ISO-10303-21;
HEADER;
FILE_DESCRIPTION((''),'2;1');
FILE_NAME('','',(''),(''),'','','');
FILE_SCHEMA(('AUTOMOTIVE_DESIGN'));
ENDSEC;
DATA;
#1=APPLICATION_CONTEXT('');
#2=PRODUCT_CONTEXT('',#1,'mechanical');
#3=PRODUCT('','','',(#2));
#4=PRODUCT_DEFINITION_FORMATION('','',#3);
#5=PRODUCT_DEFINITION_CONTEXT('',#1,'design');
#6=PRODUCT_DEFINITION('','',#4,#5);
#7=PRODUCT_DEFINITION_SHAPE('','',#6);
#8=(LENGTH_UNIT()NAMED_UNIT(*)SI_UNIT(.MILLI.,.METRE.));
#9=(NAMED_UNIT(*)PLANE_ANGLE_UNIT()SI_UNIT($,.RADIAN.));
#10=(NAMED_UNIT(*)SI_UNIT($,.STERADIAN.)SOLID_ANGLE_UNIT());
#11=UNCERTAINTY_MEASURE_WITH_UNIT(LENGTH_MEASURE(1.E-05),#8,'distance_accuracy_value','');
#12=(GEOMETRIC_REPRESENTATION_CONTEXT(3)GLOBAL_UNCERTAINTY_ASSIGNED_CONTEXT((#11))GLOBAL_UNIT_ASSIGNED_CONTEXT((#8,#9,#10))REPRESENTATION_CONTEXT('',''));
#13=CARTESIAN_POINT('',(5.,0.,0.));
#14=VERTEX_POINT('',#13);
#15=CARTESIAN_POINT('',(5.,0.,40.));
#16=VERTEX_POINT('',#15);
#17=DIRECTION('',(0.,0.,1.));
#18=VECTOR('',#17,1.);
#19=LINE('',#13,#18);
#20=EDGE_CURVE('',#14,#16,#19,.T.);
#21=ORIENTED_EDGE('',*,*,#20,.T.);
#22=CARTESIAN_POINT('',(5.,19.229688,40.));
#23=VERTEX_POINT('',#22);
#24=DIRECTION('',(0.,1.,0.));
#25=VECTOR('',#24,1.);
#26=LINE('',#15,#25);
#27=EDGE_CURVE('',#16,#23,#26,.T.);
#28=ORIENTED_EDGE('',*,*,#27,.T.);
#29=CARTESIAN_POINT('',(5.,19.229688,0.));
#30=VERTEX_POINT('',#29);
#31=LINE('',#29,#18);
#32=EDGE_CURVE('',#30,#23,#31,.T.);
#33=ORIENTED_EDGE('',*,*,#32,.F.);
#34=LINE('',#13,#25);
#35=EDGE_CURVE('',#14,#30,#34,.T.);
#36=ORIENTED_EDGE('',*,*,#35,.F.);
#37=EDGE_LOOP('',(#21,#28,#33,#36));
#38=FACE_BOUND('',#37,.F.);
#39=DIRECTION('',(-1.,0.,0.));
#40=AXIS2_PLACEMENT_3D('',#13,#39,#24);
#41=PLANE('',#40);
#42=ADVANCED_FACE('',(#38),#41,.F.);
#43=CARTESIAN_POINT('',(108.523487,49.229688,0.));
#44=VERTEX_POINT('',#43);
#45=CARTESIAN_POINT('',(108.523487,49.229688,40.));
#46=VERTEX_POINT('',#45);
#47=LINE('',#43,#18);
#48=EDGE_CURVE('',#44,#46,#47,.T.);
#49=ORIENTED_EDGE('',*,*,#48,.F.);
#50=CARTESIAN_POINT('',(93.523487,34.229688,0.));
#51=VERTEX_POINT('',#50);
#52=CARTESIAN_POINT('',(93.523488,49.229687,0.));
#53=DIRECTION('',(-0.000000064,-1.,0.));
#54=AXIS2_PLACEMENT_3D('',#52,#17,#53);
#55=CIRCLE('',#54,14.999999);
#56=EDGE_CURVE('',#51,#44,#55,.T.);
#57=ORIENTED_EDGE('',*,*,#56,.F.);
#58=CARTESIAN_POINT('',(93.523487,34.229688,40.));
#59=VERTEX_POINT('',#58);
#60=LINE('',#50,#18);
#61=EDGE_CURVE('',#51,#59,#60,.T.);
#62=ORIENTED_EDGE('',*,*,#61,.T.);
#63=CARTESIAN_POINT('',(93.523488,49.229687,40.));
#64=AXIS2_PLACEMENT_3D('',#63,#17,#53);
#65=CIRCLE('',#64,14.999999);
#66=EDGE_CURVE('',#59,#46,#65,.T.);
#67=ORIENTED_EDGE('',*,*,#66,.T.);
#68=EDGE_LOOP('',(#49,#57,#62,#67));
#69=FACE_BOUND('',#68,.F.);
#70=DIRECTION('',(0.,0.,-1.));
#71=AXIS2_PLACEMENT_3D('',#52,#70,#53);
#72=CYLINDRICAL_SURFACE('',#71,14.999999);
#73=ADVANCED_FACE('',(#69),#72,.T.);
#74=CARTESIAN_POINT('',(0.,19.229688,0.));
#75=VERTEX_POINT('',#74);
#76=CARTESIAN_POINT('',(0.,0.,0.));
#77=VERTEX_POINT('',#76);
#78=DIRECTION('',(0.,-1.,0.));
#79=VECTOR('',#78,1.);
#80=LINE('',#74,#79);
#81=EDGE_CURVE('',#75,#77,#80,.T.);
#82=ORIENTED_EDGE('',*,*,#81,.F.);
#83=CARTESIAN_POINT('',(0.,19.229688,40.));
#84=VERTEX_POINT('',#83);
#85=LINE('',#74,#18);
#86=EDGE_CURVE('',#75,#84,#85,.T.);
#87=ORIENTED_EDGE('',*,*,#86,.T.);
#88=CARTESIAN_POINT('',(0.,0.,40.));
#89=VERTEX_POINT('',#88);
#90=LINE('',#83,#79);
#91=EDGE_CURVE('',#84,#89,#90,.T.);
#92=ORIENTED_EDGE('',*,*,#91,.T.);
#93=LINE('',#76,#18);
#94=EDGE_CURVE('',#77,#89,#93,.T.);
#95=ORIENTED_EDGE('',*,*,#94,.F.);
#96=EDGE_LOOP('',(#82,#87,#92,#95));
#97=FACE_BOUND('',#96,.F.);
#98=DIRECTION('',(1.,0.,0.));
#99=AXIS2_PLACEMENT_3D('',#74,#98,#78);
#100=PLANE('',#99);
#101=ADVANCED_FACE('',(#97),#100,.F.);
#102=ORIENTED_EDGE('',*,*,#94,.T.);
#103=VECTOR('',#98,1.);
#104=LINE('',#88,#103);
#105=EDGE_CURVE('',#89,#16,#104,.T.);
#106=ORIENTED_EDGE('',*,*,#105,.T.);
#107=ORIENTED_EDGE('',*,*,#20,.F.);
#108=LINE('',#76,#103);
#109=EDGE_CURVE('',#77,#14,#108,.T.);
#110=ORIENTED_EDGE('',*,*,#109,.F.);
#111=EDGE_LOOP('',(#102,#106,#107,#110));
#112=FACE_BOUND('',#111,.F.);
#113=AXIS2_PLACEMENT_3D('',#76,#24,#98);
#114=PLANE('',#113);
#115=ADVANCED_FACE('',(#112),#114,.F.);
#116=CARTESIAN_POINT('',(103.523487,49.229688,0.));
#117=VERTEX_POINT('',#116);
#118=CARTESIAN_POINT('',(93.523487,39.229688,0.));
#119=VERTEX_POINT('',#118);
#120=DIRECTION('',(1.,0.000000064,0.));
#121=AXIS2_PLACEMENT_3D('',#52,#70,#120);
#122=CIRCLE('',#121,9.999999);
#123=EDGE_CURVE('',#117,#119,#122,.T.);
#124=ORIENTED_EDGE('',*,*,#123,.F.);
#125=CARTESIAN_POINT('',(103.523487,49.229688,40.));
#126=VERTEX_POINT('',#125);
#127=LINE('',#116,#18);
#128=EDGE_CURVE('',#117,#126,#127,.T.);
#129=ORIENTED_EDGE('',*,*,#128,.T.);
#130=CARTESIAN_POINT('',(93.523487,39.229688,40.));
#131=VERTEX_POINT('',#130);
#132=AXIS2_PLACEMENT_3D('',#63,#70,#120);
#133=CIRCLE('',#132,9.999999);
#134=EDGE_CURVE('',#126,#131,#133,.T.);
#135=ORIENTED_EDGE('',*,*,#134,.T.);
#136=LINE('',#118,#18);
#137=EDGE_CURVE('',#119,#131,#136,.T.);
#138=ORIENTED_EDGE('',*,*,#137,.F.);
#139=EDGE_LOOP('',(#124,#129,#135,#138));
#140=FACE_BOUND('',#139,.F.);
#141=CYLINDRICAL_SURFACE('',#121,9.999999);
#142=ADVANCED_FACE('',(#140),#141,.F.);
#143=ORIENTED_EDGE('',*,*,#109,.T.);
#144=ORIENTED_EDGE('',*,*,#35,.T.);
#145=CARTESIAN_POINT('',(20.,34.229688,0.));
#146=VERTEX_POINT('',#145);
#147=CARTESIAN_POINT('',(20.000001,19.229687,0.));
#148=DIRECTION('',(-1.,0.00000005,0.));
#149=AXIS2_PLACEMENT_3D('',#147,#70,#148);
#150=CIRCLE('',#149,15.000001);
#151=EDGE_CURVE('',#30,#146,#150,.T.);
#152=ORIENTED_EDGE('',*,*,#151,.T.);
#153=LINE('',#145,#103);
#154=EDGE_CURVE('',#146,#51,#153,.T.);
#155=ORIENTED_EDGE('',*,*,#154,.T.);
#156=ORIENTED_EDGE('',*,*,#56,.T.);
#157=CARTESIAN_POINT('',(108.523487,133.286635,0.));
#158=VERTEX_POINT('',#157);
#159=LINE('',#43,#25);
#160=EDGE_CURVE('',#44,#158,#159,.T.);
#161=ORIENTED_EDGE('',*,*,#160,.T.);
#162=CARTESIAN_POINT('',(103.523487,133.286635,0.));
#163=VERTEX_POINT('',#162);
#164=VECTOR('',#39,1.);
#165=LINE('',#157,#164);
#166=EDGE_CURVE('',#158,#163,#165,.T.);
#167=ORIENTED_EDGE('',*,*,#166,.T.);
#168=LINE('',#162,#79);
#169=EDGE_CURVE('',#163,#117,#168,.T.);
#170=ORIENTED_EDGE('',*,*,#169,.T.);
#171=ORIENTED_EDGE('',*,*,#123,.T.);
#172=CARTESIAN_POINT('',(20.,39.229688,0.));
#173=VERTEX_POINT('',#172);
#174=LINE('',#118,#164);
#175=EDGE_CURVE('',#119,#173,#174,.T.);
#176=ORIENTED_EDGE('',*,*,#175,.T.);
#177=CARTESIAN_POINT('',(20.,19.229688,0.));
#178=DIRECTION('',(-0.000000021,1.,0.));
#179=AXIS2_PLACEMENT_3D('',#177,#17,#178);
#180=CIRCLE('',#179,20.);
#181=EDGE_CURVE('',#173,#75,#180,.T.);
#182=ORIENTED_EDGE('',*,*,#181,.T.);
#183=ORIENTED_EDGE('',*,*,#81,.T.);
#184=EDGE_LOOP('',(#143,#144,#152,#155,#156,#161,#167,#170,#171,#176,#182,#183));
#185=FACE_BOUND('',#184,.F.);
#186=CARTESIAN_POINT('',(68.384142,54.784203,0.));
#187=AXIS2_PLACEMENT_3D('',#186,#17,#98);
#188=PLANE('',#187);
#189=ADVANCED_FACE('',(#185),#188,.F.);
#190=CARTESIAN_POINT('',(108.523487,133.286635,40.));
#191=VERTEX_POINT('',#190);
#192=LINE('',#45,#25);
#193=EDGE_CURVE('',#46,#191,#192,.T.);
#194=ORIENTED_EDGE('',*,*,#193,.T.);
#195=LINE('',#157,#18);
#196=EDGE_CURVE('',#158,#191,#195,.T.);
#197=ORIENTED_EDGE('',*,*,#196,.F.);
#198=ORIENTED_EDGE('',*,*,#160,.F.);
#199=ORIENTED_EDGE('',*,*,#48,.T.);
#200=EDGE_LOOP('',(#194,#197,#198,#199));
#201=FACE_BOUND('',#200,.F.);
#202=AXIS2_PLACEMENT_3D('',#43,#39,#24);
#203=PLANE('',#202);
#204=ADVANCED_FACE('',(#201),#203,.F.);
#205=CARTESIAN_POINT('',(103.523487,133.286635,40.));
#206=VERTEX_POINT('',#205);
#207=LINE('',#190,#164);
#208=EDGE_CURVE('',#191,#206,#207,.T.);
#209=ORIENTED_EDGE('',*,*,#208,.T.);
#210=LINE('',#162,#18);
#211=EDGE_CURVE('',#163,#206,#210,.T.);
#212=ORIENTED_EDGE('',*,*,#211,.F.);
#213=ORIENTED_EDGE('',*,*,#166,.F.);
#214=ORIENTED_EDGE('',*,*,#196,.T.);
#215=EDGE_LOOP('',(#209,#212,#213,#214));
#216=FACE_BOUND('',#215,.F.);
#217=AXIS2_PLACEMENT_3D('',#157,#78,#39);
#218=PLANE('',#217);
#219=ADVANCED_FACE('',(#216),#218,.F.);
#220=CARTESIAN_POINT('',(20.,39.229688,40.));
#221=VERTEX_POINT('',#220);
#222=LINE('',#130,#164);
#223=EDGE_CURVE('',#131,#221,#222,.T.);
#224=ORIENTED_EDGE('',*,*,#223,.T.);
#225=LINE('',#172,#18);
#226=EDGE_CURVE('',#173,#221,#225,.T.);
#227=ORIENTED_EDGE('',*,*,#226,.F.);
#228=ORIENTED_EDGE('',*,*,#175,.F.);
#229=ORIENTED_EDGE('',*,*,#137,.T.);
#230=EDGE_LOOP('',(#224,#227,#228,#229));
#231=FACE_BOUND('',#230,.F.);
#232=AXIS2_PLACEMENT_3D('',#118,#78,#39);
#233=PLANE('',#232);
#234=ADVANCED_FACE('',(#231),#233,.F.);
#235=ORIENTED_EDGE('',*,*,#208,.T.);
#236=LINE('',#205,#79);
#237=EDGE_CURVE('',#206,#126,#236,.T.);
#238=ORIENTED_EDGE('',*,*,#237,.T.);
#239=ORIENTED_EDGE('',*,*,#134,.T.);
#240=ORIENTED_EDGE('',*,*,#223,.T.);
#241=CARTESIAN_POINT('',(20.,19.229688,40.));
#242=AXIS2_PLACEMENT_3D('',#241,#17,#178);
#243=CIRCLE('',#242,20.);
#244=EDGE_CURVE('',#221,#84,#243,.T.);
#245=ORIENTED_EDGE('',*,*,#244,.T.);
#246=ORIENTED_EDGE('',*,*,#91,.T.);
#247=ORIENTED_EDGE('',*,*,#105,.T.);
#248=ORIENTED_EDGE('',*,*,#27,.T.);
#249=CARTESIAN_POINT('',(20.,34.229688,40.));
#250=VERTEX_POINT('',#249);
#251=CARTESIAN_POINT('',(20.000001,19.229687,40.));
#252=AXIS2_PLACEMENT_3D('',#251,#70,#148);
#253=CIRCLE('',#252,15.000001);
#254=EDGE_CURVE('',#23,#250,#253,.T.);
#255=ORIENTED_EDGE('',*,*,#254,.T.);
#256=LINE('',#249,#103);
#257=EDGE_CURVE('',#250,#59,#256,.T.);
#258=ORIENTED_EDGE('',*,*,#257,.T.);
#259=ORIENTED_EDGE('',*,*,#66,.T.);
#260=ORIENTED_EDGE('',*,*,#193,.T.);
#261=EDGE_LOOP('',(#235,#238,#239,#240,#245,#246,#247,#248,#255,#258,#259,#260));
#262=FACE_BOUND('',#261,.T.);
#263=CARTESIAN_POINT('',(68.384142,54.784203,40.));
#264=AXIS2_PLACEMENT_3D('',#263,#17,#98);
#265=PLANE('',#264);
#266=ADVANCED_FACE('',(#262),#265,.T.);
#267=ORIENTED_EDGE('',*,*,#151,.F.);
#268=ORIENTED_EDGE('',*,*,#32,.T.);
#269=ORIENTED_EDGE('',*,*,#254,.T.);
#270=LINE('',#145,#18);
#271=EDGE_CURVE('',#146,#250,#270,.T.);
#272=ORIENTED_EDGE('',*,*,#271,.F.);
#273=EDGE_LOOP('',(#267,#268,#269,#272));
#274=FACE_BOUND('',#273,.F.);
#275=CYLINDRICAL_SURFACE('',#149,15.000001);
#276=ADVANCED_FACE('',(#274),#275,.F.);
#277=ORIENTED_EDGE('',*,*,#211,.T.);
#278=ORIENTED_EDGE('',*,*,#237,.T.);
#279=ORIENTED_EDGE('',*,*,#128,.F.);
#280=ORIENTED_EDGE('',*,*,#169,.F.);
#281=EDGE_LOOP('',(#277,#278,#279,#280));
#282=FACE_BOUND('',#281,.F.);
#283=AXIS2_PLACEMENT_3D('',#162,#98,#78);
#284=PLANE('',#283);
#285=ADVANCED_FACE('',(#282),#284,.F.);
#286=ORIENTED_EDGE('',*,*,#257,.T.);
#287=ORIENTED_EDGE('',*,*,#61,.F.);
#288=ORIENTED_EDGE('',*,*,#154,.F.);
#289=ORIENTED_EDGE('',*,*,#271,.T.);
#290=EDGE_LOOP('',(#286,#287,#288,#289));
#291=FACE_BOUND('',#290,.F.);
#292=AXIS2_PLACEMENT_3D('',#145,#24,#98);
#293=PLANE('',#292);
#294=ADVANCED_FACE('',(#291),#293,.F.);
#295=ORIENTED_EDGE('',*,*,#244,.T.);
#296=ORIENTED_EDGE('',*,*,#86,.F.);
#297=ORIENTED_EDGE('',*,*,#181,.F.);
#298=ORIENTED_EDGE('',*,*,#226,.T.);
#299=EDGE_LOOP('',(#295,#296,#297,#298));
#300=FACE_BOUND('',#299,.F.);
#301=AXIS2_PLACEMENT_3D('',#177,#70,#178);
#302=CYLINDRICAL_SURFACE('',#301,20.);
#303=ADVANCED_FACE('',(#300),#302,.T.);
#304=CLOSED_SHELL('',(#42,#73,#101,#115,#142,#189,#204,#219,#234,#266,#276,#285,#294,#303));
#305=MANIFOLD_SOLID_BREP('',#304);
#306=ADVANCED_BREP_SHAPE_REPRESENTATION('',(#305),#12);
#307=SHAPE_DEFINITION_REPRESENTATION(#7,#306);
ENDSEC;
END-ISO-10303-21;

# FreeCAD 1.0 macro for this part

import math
import FreeCAD as App
import Part
import Sketcher
Q = App.Units.Quantity

doc = App.newDocument("Part")
params = doc.addObject("Spreadsheet::Sheet", "Params")
for row, (alias, value) in enumerate([
    ("sketch1_radius", "15.000001 mm"),
    ("sketch1_radius2", "9.999999 mm"),
    ("pad1_length", "40 mm"),
], start=1):
    params.set(f"A{row}", alias)
    params.set(f"B{row}", "=" + value)
    params.setAlias(f"B{row}", alias)

body = doc.addObject("PartDesign::Body", "Body")

# Sketch on XY plane
sketch1 = body.newObject("Sketcher::SketchObject", "Sketch")
sketch1.AttachmentSupport = (doc.getObject("XY_Plane"), [""])
sketch1.MapMode = "FlatFace"
sketch1.addGeometry([
    Part.LineSegment(App.Vector(0, 19, 0), App.Vector(0, 0, 0)),  # 0
    Part.LineSegment(App.Vector(0, 0, 0), App.Vector(5, 0, 0)),  # 1
    Part.LineSegment(App.Vector(5, 0, 0), App.Vector(5, 19, 0)),  # 2
    Part.ArcOfCircle(Part.Circle(App.Vector(20, 19, 0), App.Vector(0, 0, 1), 15), math.radians(90), math.radians(180)),  # 3
    Part.LineSegment(App.Vector(20, 34, 0), App.Vector(94, 34, 0)),  # 4
    Part.ArcOfCircle(Part.Circle(App.Vector(94, 49, 0), App.Vector(0, 0, 1), 15), math.radians(-90), math.radians(0)),  # 5
    Part.LineSegment(App.Vector(109, 49, 0), App.Vector(109, 133, 0)),  # 6
    Part.LineSegment(App.Vector(109, 133, 0), App.Vector(104, 133, 0)),  # 7
    Part.LineSegment(App.Vector(104, 133, 0), App.Vector(104, 49, 0)),  # 8
    Part.ArcOfCircle(Part.Circle(App.Vector(94, 49, 0), App.Vector(0, 0, 1), 10), math.radians(-90), math.radians(0)),  # 9
    Part.LineSegment(App.Vector(94, 39, 0), App.Vector(20, 39, 0)),  # 10
    Part.ArcOfCircle(Part.Circle(App.Vector(20, 19, 0), App.Vector(0, 0, 1), 20), math.radians(90), math.radians(180)),  # 11
], False)
sketch1.addConstraint([
    Sketcher.Constraint("Coincident", 0, 2, 1, 1),
    Sketcher.Constraint("Coincident", 1, 2, 2, 1),
    Sketcher.Constraint("Tangent", 2, 2, 3, 2),
    Sketcher.Constraint("Tangent", 3, 1, 4, 1),
    Sketcher.Constraint("Tangent", 4, 2, 5, 1),
    Sketcher.Constraint("Tangent", 5, 2, 6, 1),
    Sketcher.Constraint("Coincident", 6, 2, 7, 1),
    Sketcher.Constraint("Coincident", 7, 2, 8, 1),
    Sketcher.Constraint("Tangent", 8, 2, 9, 2),
    Sketcher.Constraint("Tangent", 9, 1, 10, 1),
    Sketcher.Constraint("Tangent", 10, 2, 11, 1),
    Sketcher.Constraint("Tangent", 11, 2, 0, 1),
    Sketcher.Constraint("Vertical", 0),
    Sketcher.Constraint("Horizontal", 1),
    Sketcher.Constraint("Vertical", 2),
    Sketcher.Constraint("Horizontal", 4),
    Sketcher.Constraint("Vertical", 6),
    Sketcher.Constraint("Horizontal", 7),
    Sketcher.Constraint("Vertical", 8),
    Sketcher.Constraint("Horizontal", 10),
    Sketcher.Constraint("Coincident", 0, 2, -1, 1),
    Sketcher.Constraint("Coincident", 9, 3, 5, 3),
    Sketcher.Constraint("Coincident", 11, 3, 3, 3),
    Sketcher.Constraint("Equal", 3, 5),
    Sketcher.Constraint("Radius", 3, Q("15.000001 mm")),
    Sketcher.Constraint("Radius", 9, Q("9.999999 mm")),
    Sketcher.Constraint("DistanceX", 4, 1, 4, 2, Q("73.523487 mm")),
    Sketcher.Constraint("DistanceY", 0, 2, 0, 1, Q("19.229688 mm")),
    Sketcher.Constraint("DistanceY", 6, 1, 6, 2, Q("84.056947 mm")),
])
sketch1.setExpression("Constraints[24]", "Params.sketch1_radius")
sketch1.setExpression("Constraints[25]", "Params.sketch1_radius2")
pad1 = body.newObject("PartDesign::Pad", "Pad")
pad1.Profile = sketch1
pad1.setExpression("Length", "Params.pad1_length")

doc.recompute()
